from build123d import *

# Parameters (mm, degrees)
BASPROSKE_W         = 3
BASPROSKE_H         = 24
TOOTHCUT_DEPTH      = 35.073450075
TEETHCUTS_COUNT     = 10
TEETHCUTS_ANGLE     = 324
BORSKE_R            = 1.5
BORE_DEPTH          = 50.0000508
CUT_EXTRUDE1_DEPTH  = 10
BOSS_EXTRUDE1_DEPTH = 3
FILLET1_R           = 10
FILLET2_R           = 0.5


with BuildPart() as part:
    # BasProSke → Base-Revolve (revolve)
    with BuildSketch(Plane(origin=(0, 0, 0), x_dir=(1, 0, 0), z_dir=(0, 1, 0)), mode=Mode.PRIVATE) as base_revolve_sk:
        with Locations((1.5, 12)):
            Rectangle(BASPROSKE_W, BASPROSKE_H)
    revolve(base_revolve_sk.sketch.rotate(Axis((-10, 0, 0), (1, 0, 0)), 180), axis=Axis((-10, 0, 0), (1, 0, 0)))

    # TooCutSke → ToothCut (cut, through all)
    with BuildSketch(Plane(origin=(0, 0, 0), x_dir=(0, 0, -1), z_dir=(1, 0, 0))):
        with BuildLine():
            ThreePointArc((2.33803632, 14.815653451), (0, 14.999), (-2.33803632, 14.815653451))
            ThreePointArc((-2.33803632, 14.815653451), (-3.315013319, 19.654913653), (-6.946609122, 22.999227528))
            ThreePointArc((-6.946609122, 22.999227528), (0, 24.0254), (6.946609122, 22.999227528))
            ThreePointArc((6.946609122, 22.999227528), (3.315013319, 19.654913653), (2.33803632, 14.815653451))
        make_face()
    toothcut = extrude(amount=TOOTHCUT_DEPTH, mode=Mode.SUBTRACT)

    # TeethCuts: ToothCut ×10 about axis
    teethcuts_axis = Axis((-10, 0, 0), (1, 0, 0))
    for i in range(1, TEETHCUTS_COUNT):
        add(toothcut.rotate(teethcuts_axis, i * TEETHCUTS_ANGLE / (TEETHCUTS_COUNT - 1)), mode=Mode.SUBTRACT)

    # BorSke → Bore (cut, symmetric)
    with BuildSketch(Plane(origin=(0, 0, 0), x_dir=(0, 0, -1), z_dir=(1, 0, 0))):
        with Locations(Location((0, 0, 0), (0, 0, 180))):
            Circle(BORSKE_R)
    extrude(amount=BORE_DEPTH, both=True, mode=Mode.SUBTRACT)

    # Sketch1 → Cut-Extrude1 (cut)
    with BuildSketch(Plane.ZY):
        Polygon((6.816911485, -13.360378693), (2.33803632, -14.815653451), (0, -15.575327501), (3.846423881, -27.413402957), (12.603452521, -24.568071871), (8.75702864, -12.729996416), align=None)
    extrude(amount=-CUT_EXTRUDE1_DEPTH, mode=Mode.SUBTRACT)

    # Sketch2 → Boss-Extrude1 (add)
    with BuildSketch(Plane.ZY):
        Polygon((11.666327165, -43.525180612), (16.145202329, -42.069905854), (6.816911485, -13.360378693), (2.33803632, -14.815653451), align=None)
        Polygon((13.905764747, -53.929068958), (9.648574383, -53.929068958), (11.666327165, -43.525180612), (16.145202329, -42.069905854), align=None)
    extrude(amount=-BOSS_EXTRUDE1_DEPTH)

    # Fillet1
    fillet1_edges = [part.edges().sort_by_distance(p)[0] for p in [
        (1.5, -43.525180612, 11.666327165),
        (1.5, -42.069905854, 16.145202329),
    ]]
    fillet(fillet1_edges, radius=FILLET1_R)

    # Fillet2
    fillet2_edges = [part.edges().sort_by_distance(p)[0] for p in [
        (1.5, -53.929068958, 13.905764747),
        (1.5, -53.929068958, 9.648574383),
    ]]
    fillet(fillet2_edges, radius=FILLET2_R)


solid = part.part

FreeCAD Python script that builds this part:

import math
import FreeCAD as App
import Part
import Sketcher
Q = App.Units.Quantity


def edges_at(feature, points):
    """Names of the edges that pass closest to the given points."""
    edges = feature.Shape.Edges
    near = lambda p: min(range(len(edges)), key=lambda i: edges[i].distToShape(Part.Vertex(*p))[0])
    return sorted({f"Edge{near(p) + 1}" for p in points})

doc = App.newDocument("Part")
body = doc.addObject("PartDesign::Body", "Body")

sketch1 = body.newObject("Sketcher::SketchObject", "Sketch")
sketch1.AttachmentSupport = (doc.getObject("XZ_Plane"), [""])
sketch1.MapMode = "FlatFace"
sketch1.addGeometry(Part.LineSegment(App.Vector(0, -24, 0), App.Vector(0, 0, 0)), False)
sketch1.addGeometry(Part.LineSegment(App.Vector(0, 0, 0), App.Vector(3, 0, 0)), False)
sketch1.addGeometry(Part.LineSegment(App.Vector(3, 0, 0), App.Vector(3, -24, 0)), False)
sketch1.addGeometry(Part.LineSegment(App.Vector(3, -24, 0), App.Vector(0, -24, 0)), False)
sketch1.addConstraint(Sketcher.Constraint("Coincident", 0, 2, 1, 1))
sketch1.addConstraint(Sketcher.Constraint("Coincident", 1, 2, 2, 1))
sketch1.addConstraint(Sketcher.Constraint("Coincident", 2, 2, 3, 1))
sketch1.addConstraint(Sketcher.Constraint("Coincident", 3, 2, 0, 1))
sketch1.addConstraint(Sketcher.Constraint("Vertical", 0))
sketch1.addConstraint(Sketcher.Constraint("Horizontal", 1))
sketch1.addConstraint(Sketcher.Constraint("Vertical", 2))
sketch1.addConstraint(Sketcher.Constraint("Horizontal", 3))
sketch1.addConstraint(Sketcher.Constraint("Coincident", 0, 2, -1, 1))
sketch1.addConstraint(Sketcher.Constraint("DistanceX", 1, 1, 1, 2, 3.0))
sketch1.addConstraint(Sketcher.Constraint("DistanceY", 0, 1, 0, 2, 24.0))
revolution = body.newObject("PartDesign::Revolution", "Revolution")
revolution.Profile = sketch1
revolution.ReferenceAxis = (sketch1, ["H_Axis"])
revolution.Angle = 360

sketch2 = body.newObject("Sketcher::SketchObject", "Sketch001")
sketch2.AttachmentSupport = (doc.getObject("YZ_Plane"), [""])
sketch2.MapMode = "FlatFace"
sketch2.addGeometry(Part.ArcOfCircle(Part.Circle(App.Vector(0, 0, 0), App.Vector(0, 0, 1), 14.999), math.radians(-8.967807), math.radians(8.967807)), False)
sketch2.addGeometry(Part.ArcOfCircle(Part.Circle(App.Vector(15.729387, -10.285683, 0), App.Vector(0, 0, 1), 8), math.radians(24.669555), math.radians(96.558446)), False)
sketch2.addGeometry(Part.ArcOfCircle(Part.Circle(App.Vector(0, 0, 0), App.Vector(0, 0, 1), 24.0254), math.radians(-16.806239), math.radians(16.806239)), False)
sketch2.addGeometry(Part.ArcOfCircle(Part.Circle(App.Vector(15.729387, 10.285683, 0), App.Vector(0, 0, 1), 8), math.radians(-96.558446), math.radians(-24.669555)), False)
sketch2.addConstraint(Sketcher.Constraint("Coincident", 0, 1, 1, 2))
sketch2.addConstraint(Sketcher.Constraint("Coincident", 1, 1, 2, 1))
sketch2.addConstraint(Sketcher.Constraint("Coincident", 2, 2, 3, 2))
sketch2.addConstraint(Sketcher.Constraint("Coincident", 3, 1, 0, 2))
sketch2.addConstraint(Sketcher.Constraint("Coincident", 0, 3, -1, 1))
sketch2.addConstraint(Sketcher.Constraint("Coincident", 2, 3, -1, 1))
sketch2.addConstraint(Sketcher.Constraint("Equal", 1, 3))
sketch2.addConstraint(Sketcher.Constraint("Symmetric", 1, 3, 3, 3, -1))
sketch2.addConstraint(Sketcher.Constraint("Radius", 1, 8.0))
sketch2.addConstraint(Sketcher.Constraint("Radius", 0, 14.999))
sketch2.addConstraint(Sketcher.Constraint("Radius", 2, 24.0254))
sketch2.addConstraint(Sketcher.Constraint("DistanceY", 1, 1, -1, 1, 6.946609))
sketch2.addConstraint(Sketcher.Constraint("DistanceY", 0, 1, 3, 3, 12.62372))
pocket1 = body.newObject("PartDesign::Pocket", "Pocket")
pocket1.Profile = sketch2
pocket1.Type = "ThroughAll"
pocket1.Reversed = True
doc.recompute()

polarpattern = body.newObject("PartDesign::PolarPattern", "PolarPattern")
polarpattern.Originals = [pocket1]
polarpattern.Axis = (doc.getObject("X_Axis"), [""])
polarpattern.Angle = 360
polarpattern.Occurrences = 10
body.Tip = polarpattern

sketch3 = body.newObject("Sketcher::SketchObject", "Sketch002")
sketch3.AttachmentSupport = (doc.getObject("YZ_Plane"), [""])
sketch3.MapMode = "FlatFace"
sketch3.addGeometry(Part.Circle(App.Vector(0, 0, 0), App.Vector(0, 0, 1), 1.5), False)
sketch3.addConstraint(Sketcher.Constraint("Coincident", 0, 3, -1, 1))
sketch3.addConstraint(Sketcher.Constraint("Diameter", 0, 3.0))
pocket2 = body.newObject("PartDesign::Pocket", "Pocket001")
pocket2.Profile = sketch3
pocket2.Length = 100.000102
pocket2.Midplane = True

sketch4 = body.newObject("Sketcher::SketchObject", "Sketch003")
sketch4.AttachmentSupport = (doc.getObject("YZ_Plane"), [""])
sketch4.MapMode = "FlatFace"
sketch4.addGeometry(Part.LineSegment(App.Vector(-13.360379, 6.816911, 0), App.Vector(-14.815653, 2.338036, 0)), False)
sketch4.addGeometry(Part.LineSegment(App.Vector(-14.815653, 2.338036, 0), App.Vector(-15.575328, 0, 0)), False)
sketch4.addGeometry(Part.LineSegment(App.Vector(-15.575328, 0, 0), App.Vector(-27.413403, 3.846424, 0)), False)
sketch4.addGeometry(Part.LineSegment(App.Vector(-27.413403, 3.846424, 0), App.Vector(-24.568072, 12.603453, 0)), False)
sketch4.addGeometry(Part.LineSegment(App.Vector(-24.568072, 12.603453, 0), App.Vector(-12.729996, 8.757029, 0)), False)
sketch4.addGeometry(Part.LineSegment(App.Vector(-12.729996, 8.757029, 0), App.Vector(-13.360379, 6.816911, 0)), False)
sketch4.addConstraint(Sketcher.Constraint("Coincident", 0, 2, 1, 1))
sketch4.addConstraint(Sketcher.Constraint("Coincident", 1, 2, 2, 1))
sketch4.addConstraint(Sketcher.Constraint("Coincident", 2, 2, 3, 1))
sketch4.addConstraint(Sketcher.Constraint("Coincident", 3, 2, 4, 1))
sketch4.addConstraint(Sketcher.Constraint("Coincident", 4, 2, 5, 1))
sketch4.addConstraint(Sketcher.Constraint("Coincident", 5, 2, 0, 1))
sketch4.addConstraint(Sketcher.Constraint("PointOnObject", 1, 2, -1))
sketch4.addConstraint(Sketcher.Constraint("Parallel", 0, 1))
sketch4.addConstraint(Sketcher.Constraint("Perpendicular", 1, 2))
sketch4.addConstraint(Sketcher.Constraint("Perpendicular", 2, 3))
sketch4.addConstraint(Sketcher.Constraint("Perpendicular", 3, 4))
sketch4.addConstraint(Sketcher.Constraint("Perpendicular", 4, 5))
sketch4.addConstraint(Sketcher.Constraint("Angle", 0, Q("-108 deg")))
sketch4.addConstraint(Sketcher.Constraint("Distance", 0, 4.709368))
sketch4.addConstraint(Sketcher.Constraint("Distance", 2, 12.447289))
sketch4.addConstraint(Sketcher.Constraint("Distance", 5, 2.03996))
sketch4.addConstraint(Sketcher.Constraint("DistanceX", 3, 2, -1, 1, 24.568072))
sketch4.addConstraint(Sketcher.Constraint("DistanceY", -1, 1, 4, 2, 8.757029))
pocket3 = body.newObject("PartDesign::Pocket", "Pocket002")
pocket3.Profile = sketch4
pocket3.Length = 10
pocket3.Reversed = True

sketch5 = body.newObject("Sketcher::SketchObject", "Sketch004")
sketch5.AttachmentSupport = (doc.getObject("YZ_Plane"), [""])
sketch5.MapMode = "FlatFace"
sketch5.addGeometry(Part.LineSegment(App.Vector(-42.069906, 16.145202, 0), App.Vector(-13.360379, 6.816911, 0)), False)
sketch5.addGeometry(Part.LineSegment(App.Vector(-13.360379, 6.816911, 0), App.Vector(-14.815653, 2.338036, 0)), False)
sketch5.addGeometry(Part.LineSegment(App.Vector(-14.815653, 2.338036, 0), App.Vector(-43.525181, 11.666327, 0)), False)
sketch5.addGeometry(Part.LineSegment(App.Vector(-43.525181, 11.666327, 0), App.Vector(-53.929069, 9.648574, 0)), False)
sketch5.addGeometry(Part.LineSegment(App.Vector(-53.929069, 9.648574, 0), App.Vector(-53.929069, 13.905765, 0)), False)
sketch5.addGeometry(Part.LineSegment(App.Vector(-53.929069, 13.905765, 0), App.Vector(-42.069906, 16.145202, 0)), False)
sketch5.addConstraint(Sketcher.Constraint("Coincident", 0, 2, 1, 1))
sketch5.addConstraint(Sketcher.Constraint("Coincident", 1, 2, 2, 1))
sketch5.addConstraint(Sketcher.Constraint("Coincident", 2, 2, 3, 1))
sketch5.addConstraint(Sketcher.Constraint("Coincident", 3, 2, 4, 1))
sketch5.addConstraint(Sketcher.Constraint("Coincident", 4, 2, 5, 1))
sketch5.addConstraint(Sketcher.Constraint("Coincident", 5, 2, 0, 1))
sketch5.addConstraint(Sketcher.Constraint("Vertical", 4))
sketch5.addConstraint(Sketcher.Constraint("Perpendicular", 0, 1))
sketch5.addConstraint(Sketcher.Constraint("Perpendicular", 1, 2))
sketch5.addConstraint(Sketcher.Constraint("Equal", 0, 2))
sketch5.addConstraint(Sketcher.Constraint("Angle", 0, Q("-18 deg")))
sketch5.addConstraint(Sketcher.Constraint("DistanceY", 4, 1, 4, 2, 4.25719))
sketch5.addConstraint(Sketcher.Constraint("DistanceX", 2, 2, 0, 2, 30.164802))
sketch5.addConstraint(Sketcher.Constraint("Distance", 1, 4.709368))
sketch5.addConstraint(Sketcher.Constraint("DistanceX", 0, 2, -1, 1, 13.360379))
sketch5.addConstraint(Sketcher.Constraint("DistanceY", -1, 1, 0, 2, 6.816911))
sketch5.addConstraint(Sketcher.Constraint("DistanceX", 3, 2, -1, 1, 53.929069))
sketch5.addConstraint(Sketcher.Constraint("DistanceY", 1, 2, 3, 2, 7.310538))
pad1 = body.newObject("PartDesign::Pad", "Pad")
pad1.Profile = sketch5
pad1.Length = 3
doc.recompute()

fillet = body.newObject("PartDesign::Fillet", "Fillet")
fillet.Base = (pad1, edges_at(pad1, [(1.5, -43.525, 11.666), (1.5, -42.07, 16.145)]))
fillet.Radius = 10
doc.recompute()

fillet2 = body.newObject("PartDesign::Fillet", "Fillet001")
fillet2.Base = (fillet, edges_at(fillet, [(1.5, -53.929, 13.906), (1.5, -53.929, 9.649)]))
fillet2.Radius = 0.5

doc.recompute()
